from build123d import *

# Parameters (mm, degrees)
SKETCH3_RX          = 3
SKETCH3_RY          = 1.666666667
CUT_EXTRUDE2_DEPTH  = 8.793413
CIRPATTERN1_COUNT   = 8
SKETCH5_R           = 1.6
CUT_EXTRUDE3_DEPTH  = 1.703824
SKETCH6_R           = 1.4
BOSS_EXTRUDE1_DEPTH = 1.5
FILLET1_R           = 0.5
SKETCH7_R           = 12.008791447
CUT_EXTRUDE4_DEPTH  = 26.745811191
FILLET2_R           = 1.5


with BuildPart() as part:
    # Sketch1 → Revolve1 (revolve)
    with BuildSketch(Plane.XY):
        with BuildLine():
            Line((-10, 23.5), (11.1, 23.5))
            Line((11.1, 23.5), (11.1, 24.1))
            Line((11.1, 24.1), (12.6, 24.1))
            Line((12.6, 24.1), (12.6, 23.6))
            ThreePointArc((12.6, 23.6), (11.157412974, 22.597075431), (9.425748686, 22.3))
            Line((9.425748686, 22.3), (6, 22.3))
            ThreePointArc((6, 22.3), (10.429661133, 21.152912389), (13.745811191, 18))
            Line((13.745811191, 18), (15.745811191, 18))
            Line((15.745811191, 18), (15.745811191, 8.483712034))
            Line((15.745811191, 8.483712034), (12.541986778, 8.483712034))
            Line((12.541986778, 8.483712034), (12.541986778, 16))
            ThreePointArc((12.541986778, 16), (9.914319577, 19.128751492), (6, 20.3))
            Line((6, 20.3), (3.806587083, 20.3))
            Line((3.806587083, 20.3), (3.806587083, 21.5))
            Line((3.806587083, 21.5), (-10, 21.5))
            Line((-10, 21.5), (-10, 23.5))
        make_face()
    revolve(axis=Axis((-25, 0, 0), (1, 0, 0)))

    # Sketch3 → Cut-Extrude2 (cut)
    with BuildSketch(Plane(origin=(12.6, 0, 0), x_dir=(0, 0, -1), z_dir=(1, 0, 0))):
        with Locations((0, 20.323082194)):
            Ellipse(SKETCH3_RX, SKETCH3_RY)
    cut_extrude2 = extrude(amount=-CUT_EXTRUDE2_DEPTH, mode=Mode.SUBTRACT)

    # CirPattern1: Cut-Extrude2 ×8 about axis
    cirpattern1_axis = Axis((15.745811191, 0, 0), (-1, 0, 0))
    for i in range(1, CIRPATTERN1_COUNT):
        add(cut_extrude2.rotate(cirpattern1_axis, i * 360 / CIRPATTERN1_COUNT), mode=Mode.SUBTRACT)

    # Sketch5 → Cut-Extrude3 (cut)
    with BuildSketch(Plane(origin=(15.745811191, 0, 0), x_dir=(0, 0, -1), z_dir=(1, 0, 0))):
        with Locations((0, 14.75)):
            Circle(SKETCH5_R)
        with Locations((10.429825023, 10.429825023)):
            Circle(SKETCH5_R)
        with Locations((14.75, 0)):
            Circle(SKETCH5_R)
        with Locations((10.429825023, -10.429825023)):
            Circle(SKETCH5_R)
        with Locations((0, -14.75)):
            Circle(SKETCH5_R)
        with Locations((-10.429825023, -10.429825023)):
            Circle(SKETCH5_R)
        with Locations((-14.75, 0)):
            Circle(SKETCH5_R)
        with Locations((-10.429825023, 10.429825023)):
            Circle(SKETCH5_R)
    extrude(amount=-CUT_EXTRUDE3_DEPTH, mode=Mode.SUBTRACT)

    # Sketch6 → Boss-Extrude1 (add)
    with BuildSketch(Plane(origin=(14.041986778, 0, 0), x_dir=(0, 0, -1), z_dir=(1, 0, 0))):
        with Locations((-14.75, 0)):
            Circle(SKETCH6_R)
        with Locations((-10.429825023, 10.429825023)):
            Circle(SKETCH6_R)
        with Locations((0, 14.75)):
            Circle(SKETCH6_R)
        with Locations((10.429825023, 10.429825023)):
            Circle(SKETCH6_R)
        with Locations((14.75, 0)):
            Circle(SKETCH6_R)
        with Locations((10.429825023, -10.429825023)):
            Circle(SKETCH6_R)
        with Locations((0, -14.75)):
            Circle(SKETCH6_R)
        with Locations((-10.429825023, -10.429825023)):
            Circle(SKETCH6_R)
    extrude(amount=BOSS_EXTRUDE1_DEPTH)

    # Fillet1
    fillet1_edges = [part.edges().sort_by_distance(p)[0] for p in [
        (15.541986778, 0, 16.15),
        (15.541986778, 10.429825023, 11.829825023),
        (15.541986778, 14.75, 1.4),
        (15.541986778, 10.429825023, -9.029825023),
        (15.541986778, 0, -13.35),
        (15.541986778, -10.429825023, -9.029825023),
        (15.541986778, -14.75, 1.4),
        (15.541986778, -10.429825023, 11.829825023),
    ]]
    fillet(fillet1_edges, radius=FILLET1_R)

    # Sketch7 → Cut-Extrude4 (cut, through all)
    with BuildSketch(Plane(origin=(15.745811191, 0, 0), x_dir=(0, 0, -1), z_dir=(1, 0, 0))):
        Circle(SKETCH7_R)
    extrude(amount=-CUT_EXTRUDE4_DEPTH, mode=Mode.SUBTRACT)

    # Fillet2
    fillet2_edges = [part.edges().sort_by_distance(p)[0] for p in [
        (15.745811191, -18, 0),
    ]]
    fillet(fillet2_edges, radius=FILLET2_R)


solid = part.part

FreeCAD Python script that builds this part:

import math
import FreeCAD as App
import Part
import Sketcher
Q = App.Units.Quantity


def edges_at(feature, points):
    """Names of the edges that pass closest to the given points."""
    edges = feature.Shape.Edges
    near = lambda p: min(range(len(edges)), key=lambda i: edges[i].distToShape(Part.Vertex(*p))[0])
    return sorted({f"Edge{near(p) + 1}" for p in points})

doc = App.newDocument("Part")
body = doc.addObject("PartDesign::Body", "Body")

sketch1 = body.newObject("Sketcher::SketchObject", "Sketch")
sketch1.AttachmentSupport = (doc.getObject("XY_Plane"), [""])
sketch1.MapMode = "FlatFace"
sketch1.addGeometry([
    Part.LineSegment(App.Vector(11.1, 23.5, 0), App.Vector(-10, 23.5, 0)),
    Part.LineSegment(App.Vector(-10, 23.5, 0), App.Vector(-10, 21.5, 0)),
    Part.LineSegment(App.Vector(-10, 21.5, 0), App.Vector(3.806587, 21.5, 0)),
    Part.LineSegment(App.Vector(3.806587, 21.5, 0), App.Vector(3.806587, 20.3, 0)),
    Part.LineSegment(App.Vector(3.806587, 20.3, 0), App.Vector(6, 20.3, 0)),
    Part.ArcOfCircle(Part.Circle(App.Vector(6, 13.173536, 0), App.Vector(0, 0, 1), 7.126464), math.radians(23.366749), math.radians(90)),
    Part.LineSegment(App.Vector(12.541987, 16, 0), App.Vector(12.541987, 8.483712, 0)),
    Part.LineSegment(App.Vector(12.541987, 8.483712, 0), App.Vector(15.745811, 8.483712, 0)),
    Part.LineSegment(App.Vector(15.745811, 8.483712, 0), App.Vector(15.745811, 18, 0)),
    Part.LineSegment(App.Vector(15.745811, 18, 0), App.Vector(13.745811, 18, 0)),
    Part.ArcOfCircle(Part.Circle(App.Vector(6, 13.173536, 0), App.Vector(0, 0, 1), 9.126464), math.radians(31.927295), math.radians(90)),
    Part.LineSegment(App.Vector(6, 22.3, 0), App.Vector(9.425749, 22.3, 0)),
    Part.ArcOfCircle(Part.Circle(App.Vector(9.623597, 26.342243, 0), App.Vector(0, 0, 1), 4.047082), math.radians(-92.802111), math.radians(-42.655235)),
    Part.LineSegment(App.Vector(12.6, 23.6, 0), App.Vector(12.6, 24.1, 0)),
    Part.LineSegment(App.Vector(12.6, 24.1, 0), App.Vector(11.1, 24.1, 0)),
    Part.LineSegment(App.Vector(11.1, 24.1, 0), App.Vector(11.1, 23.5, 0)),
], False)
sketch1.addConstraint([
    Sketcher.Constraint("Coincident", 0, 2, 1, 1),
    Sketcher.Constraint("Coincident", 1, 2, 2, 1),
    Sketcher.Constraint("Coincident", 2, 2, 3, 1),
    Sketcher.Constraint("Coincident", 3, 2, 4, 1),
    Sketcher.Constraint("Tangent", 4, 2, 5, 2),
    Sketcher.Constraint("Coincident", 5, 1, 6, 1),
    Sketcher.Constraint("Coincident", 6, 2, 7, 1),
    Sketcher.Constraint("Coincident", 7, 2, 8, 1),
    Sketcher.Constraint("Coincident", 8, 2, 9, 1),
    Sketcher.Constraint("Coincident", 9, 2, 10, 1),
    Sketcher.Constraint("Tangent", 10, 2, 11, 1),
    Sketcher.Constraint("Coincident", 11, 2, 12, 1),
    Sketcher.Constraint("Coincident", 12, 2, 13, 1),
    Sketcher.Constraint("Coincident", 13, 2, 14, 1),
    Sketcher.Constraint("Coincident", 14, 2, 15, 1),
    Sketcher.Constraint("Coincident", 15, 2, 0, 1),
    Sketcher.Constraint("Horizontal", 0),
    Sketcher.Constraint("Vertical", 1),
    Sketcher.Constraint("Horizontal", 2),
    Sketcher.Constraint("Vertical", 3),
    Sketcher.Constraint("Horizontal", 4),
    Sketcher.Constraint("Vertical", 6),
    Sketcher.Constraint("Horizontal", 7),
    Sketcher.Constraint("Vertical", 8),
    Sketcher.Constraint("Horizontal", 9),
    Sketcher.Constraint("Horizontal", 11),
    Sketcher.Constraint("Vertical", 13),
    Sketcher.Constraint("Horizontal", 14),
    Sketcher.Constraint("Vertical", 15),
    Sketcher.Constraint("Coincident", 10, 3, 5, 3),
    Sketcher.Constraint("Equal", 9, 1),
    Sketcher.Constraint("DistanceX", 9, 2, 9, 1, Q("2 mm")),
    Sketcher.Constraint("DistanceX", 0, 2, 0, 1, Q("21.1 mm")),
    Sketcher.Constraint("DistanceX", 14, 2, 14, 1, Q("1.5 mm")),
    Sketcher.Constraint("DistanceY", 3, 2, 3, 1, Q("1.2 mm")),
    Sketcher.Constraint("DistanceY", 13, 1, 13, 2, Q("0.5 mm")),
    Sketcher.Constraint("DistanceY", 15, 2, 15, 1, Q("0.6 mm")),
    Sketcher.Constraint("DistanceX", -1, 1, 5, 3, Q("6 mm")),
    Sketcher.Constraint("DistanceX", 0, 2, -1, 1, Q("10 mm")),
    Sketcher.Constraint("DistanceY", -1, 1, 5, 1, Q("16 mm")),
    Sketcher.Constraint("DistanceY", -1, 1, 8, 2, Q("18 mm")),
    Sketcher.Constraint("DistanceY", 4, 2, 10, 2, Q("2 mm")),
    Sketcher.Constraint("DistanceY", -1, 1, 0, 2, Q("23.5 mm")),
    Sketcher.Constraint("Radius", 5, Q("7.126464 mm")),
    Sketcher.Constraint("Radius", 12, Q("4.047082 mm")),
    Sketcher.Constraint("DistanceX", 11, 1, 11, 2, Q("3.425749 mm")),
    Sketcher.Constraint("DistanceX", 3, 2, 5, 1, Q("8.7354 mm")),
    Sketcher.Constraint("DistanceY", 6, 2, 6, 1, Q("7.516288 mm")),
])
revolution = body.newObject("PartDesign::Revolution", "Revolution")
revolution.Profile = sketch1
revolution.ReferenceAxis = (sketch1, ["H_Axis"])
revolution.Angle = 360

sketch2 = body.newObject("Sketcher::SketchObject", "Sketch001")
sketch2.AttachmentSupport = (doc.getObject("YZ_Plane"), [""])
sketch2.MapMode = "FlatFace"
sketch2.AttachmentOffset = App.Placement(App.Vector(0, 0, 12.6), App.Rotation())
sketch2.addGeometry(Part.Ellipse(App.Vector(20.323082, -3, 0), App.Vector(21.989749, 0, 0), App.Vector(20.323082, 0, 0)), False)
sketch2.addConstraint(Sketcher.Constraint("Block", 0))
pocket1 = body.newObject("PartDesign::Pocket", "Pocket")
pocket1.Profile = sketch2
pocket1.Length = 8.793413
doc.recompute()

polarpattern = body.newObject("PartDesign::PolarPattern", "PolarPattern")
polarpattern.Originals = [pocket1]
polarpattern.Axis = (doc.getObject("X_Axis"), [""])
polarpattern.Angle = 360
polarpattern.Occurrences = 8
body.Tip = polarpattern

sketch3 = body.newObject("Sketcher::SketchObject", "Sketch002")
sketch3.AttachmentSupport = (doc.getObject("YZ_Plane"), [""])
sketch3.MapMode = "FlatFace"
sketch3.AttachmentOffset = App.Placement(App.Vector(0, 0, 15.745811), App.Rotation())
sketch3.addGeometry([
    Part.Circle(App.Vector(14.75, 0, 0), App.Vector(0, 0, 1), 1.6),
    Part.Circle(App.Vector(10.429825, -10.429825, 0), App.Vector(0, 0, 1), 1.6),
    Part.Circle(App.Vector(0, -14.75, 0), App.Vector(0, 0, 1), 1.6),
    Part.Circle(App.Vector(-10.429825, -10.429825, 0), App.Vector(0, 0, 1), 1.6),
    Part.Circle(App.Vector(-14.75, 0, 0), App.Vector(0, 0, 1), 1.6),
    Part.Circle(App.Vector(-10.429825, 10.429825, 0), App.Vector(0, 0, 1), 1.6),
    Part.Circle(App.Vector(0, 14.75, 0), App.Vector(0, 0, 1), 1.6),
    Part.Circle(App.Vector(10.429825, 10.429825, 0), App.Vector(0, 0, 1), 1.6),
], False)
sketch3.addConstraint([
    Sketcher.Constraint("Equal", 0, 1),
    Sketcher.Constraint("Equal", 1, 2),
    Sketcher.Constraint("Equal", 2, 3),
    Sketcher.Constraint("Equal", 3, 4),
    Sketcher.Constraint("Equal", 4, 5),
    Sketcher.Constraint("Equal", 5, 6),
    Sketcher.Constraint("Equal", 6, 7),
    Sketcher.Constraint("Symmetric", 0, 3, 4, 3, -1, 1),
    Sketcher.Constraint("Symmetric", 1, 3, 5, 3, -1, 1),
    Sketcher.Constraint("Symmetric", 2, 3, 6, 3, -1, 1),
    Sketcher.Constraint("Symmetric", 3, 3, 7, 3, -1, 1),
    Sketcher.Constraint("Symmetric", 1, 3, 3, 3, -2),
    Sketcher.Constraint("PointOnObject", 0, 3, -1),
    Sketcher.Constraint("PointOnObject", 2, 3, -2),
    Sketcher.Constraint("Diameter", 0, Q("3.2 mm")),
    Sketcher.Constraint("DistanceX", 4, 3, 0, 3, Q("29.5 mm")),
    Sketcher.Constraint("DistanceY", 2, 3, -1, 1, Q("14.75 mm")),
    Sketcher.Constraint("DistanceX", 3, 3, 1, 3, Q("20.85965 mm")),
    Sketcher.Constraint("DistanceY", 3, 3, 5, 3, Q("20.85965 mm")),
])
pocket2 = body.newObject("PartDesign::Pocket", "Pocket001")
pocket2.Profile = sketch3
pocket2.Length = 1.703824

sketch4 = body.newObject("Sketcher::SketchObject", "Sketch003")
sketch4.AttachmentSupport = (doc.getObject("YZ_Plane"), [""])
sketch4.MapMode = "FlatFace"
sketch4.AttachmentOffset = App.Placement(App.Vector(0, 0, 14.041987), App.Rotation())
sketch4.addGeometry([
    Part.Circle(App.Vector(0, 14.75, 0), App.Vector(0, 0, 1), 1.4),
    Part.Circle(App.Vector(10.429825, 10.429825, 0), App.Vector(0, 0, 1), 1.4),
    Part.Circle(App.Vector(14.75, 0, 0), App.Vector(0, 0, 1), 1.4),
    Part.Circle(App.Vector(10.429825, -10.429825, 0), App.Vector(0, 0, 1), 1.4),
    Part.Circle(App.Vector(0, -14.75, 0), App.Vector(0, 0, 1), 1.4),
    Part.Circle(App.Vector(-10.429825, -10.429825, 0), App.Vector(0, 0, 1), 1.4),
    Part.Circle(App.Vector(-14.75, 0, 0), App.Vector(0, 0, 1), 1.4),
    Part.Circle(App.Vector(-10.429825, 10.429825, 0), App.Vector(0, 0, 1), 1.4),
], False)
sketch4.addConstraint([
    Sketcher.Constraint("Equal", 0, 1),
    Sketcher.Constraint("Equal", 1, 2),
    Sketcher.Constraint("Equal", 2, 3),
    Sketcher.Constraint("Equal", 3, 4),
    Sketcher.Constraint("Equal", 4, 5),
    Sketcher.Constraint("Equal", 5, 6),
    Sketcher.Constraint("Equal", 6, 7),
    Sketcher.Constraint("Symmetric", 0, 3, 4, 3, -1, 1),
    Sketcher.Constraint("Symmetric", 1, 3, 5, 3, -1, 1),
    Sketcher.Constraint("Symmetric", 2, 3, 6, 3, -1, 1),
    Sketcher.Constraint("Symmetric", 3, 3, 7, 3, -1, 1),
    Sketcher.Constraint("Symmetric", 3, 3, 5, 3, -2),
    Sketcher.Constraint("PointOnObject", 0, 3, -2),
    Sketcher.Constraint("PointOnObject", 2, 3, -1),
    Sketcher.Constraint("Diameter", 0, Q("2.8 mm")),
    Sketcher.Constraint("DistanceY", 4, 3, 0, 3, Q("29.5 mm")),
    Sketcher.Constraint("DistanceX", -1, 1, 2, 3, Q("14.75 mm")),
    Sketcher.Constraint("DistanceY", 3, 3, 1, 3, Q("20.85965 mm")),
    Sketcher.Constraint("DistanceX", 5, 3, 3, 3, Q("20.85965 mm")),
])
pad1 = body.newObject("PartDesign::Pad", "Pad")
pad1.Profile = sketch4
pad1.Length = 1.5
doc.recompute()

fillet = body.newObject("PartDesign::Fillet", "Fillet")
fillet.Base = (pad1, edges_at(pad1, [
    (15.542, 0, 16.15),
    (15.542, 10.43, 11.83),
    (15.542, 14.75, 1.4),
    (15.542, 10.43, -9.03),
    (15.542, 0, -13.35),
    (15.542, -10.43, -9.03),
    (15.542, -14.75, 1.4),
    (15.542, -10.43, 11.83),
]))
fillet.Radius = 0.5

sketch5 = body.newObject("Sketcher::SketchObject", "Sketch004")
sketch5.AttachmentSupport = (doc.getObject("YZ_Plane"), [""])
sketch5.MapMode = "FlatFace"
sketch5.AttachmentOffset = App.Placement(App.Vector(0, 0, 15.745811), App.Rotation())
sketch5.addGeometry(Part.Circle(App.Vector(0, 0, 0), App.Vector(0, 0, 1), 12.008791), False)
sketch5.addConstraint([
    Sketcher.Constraint("Coincident", 0, 3, -1, 1),
    Sketcher.Constraint("Diameter", 0, Q("24.017583 mm")),
])
pocket3 = body.newObject("PartDesign::Pocket", "Pocket002")
pocket3.Profile = sketch5
pocket3.Type = "ThroughAll"
doc.recompute()

fillet2 = body.newObject("PartDesign::Fillet", "Fillet001")
fillet2.Base = (pocket3, edges_at(pocket3, [(15.746, -18, 0)]))
fillet2.Radius = 1.5

doc.recompute()
